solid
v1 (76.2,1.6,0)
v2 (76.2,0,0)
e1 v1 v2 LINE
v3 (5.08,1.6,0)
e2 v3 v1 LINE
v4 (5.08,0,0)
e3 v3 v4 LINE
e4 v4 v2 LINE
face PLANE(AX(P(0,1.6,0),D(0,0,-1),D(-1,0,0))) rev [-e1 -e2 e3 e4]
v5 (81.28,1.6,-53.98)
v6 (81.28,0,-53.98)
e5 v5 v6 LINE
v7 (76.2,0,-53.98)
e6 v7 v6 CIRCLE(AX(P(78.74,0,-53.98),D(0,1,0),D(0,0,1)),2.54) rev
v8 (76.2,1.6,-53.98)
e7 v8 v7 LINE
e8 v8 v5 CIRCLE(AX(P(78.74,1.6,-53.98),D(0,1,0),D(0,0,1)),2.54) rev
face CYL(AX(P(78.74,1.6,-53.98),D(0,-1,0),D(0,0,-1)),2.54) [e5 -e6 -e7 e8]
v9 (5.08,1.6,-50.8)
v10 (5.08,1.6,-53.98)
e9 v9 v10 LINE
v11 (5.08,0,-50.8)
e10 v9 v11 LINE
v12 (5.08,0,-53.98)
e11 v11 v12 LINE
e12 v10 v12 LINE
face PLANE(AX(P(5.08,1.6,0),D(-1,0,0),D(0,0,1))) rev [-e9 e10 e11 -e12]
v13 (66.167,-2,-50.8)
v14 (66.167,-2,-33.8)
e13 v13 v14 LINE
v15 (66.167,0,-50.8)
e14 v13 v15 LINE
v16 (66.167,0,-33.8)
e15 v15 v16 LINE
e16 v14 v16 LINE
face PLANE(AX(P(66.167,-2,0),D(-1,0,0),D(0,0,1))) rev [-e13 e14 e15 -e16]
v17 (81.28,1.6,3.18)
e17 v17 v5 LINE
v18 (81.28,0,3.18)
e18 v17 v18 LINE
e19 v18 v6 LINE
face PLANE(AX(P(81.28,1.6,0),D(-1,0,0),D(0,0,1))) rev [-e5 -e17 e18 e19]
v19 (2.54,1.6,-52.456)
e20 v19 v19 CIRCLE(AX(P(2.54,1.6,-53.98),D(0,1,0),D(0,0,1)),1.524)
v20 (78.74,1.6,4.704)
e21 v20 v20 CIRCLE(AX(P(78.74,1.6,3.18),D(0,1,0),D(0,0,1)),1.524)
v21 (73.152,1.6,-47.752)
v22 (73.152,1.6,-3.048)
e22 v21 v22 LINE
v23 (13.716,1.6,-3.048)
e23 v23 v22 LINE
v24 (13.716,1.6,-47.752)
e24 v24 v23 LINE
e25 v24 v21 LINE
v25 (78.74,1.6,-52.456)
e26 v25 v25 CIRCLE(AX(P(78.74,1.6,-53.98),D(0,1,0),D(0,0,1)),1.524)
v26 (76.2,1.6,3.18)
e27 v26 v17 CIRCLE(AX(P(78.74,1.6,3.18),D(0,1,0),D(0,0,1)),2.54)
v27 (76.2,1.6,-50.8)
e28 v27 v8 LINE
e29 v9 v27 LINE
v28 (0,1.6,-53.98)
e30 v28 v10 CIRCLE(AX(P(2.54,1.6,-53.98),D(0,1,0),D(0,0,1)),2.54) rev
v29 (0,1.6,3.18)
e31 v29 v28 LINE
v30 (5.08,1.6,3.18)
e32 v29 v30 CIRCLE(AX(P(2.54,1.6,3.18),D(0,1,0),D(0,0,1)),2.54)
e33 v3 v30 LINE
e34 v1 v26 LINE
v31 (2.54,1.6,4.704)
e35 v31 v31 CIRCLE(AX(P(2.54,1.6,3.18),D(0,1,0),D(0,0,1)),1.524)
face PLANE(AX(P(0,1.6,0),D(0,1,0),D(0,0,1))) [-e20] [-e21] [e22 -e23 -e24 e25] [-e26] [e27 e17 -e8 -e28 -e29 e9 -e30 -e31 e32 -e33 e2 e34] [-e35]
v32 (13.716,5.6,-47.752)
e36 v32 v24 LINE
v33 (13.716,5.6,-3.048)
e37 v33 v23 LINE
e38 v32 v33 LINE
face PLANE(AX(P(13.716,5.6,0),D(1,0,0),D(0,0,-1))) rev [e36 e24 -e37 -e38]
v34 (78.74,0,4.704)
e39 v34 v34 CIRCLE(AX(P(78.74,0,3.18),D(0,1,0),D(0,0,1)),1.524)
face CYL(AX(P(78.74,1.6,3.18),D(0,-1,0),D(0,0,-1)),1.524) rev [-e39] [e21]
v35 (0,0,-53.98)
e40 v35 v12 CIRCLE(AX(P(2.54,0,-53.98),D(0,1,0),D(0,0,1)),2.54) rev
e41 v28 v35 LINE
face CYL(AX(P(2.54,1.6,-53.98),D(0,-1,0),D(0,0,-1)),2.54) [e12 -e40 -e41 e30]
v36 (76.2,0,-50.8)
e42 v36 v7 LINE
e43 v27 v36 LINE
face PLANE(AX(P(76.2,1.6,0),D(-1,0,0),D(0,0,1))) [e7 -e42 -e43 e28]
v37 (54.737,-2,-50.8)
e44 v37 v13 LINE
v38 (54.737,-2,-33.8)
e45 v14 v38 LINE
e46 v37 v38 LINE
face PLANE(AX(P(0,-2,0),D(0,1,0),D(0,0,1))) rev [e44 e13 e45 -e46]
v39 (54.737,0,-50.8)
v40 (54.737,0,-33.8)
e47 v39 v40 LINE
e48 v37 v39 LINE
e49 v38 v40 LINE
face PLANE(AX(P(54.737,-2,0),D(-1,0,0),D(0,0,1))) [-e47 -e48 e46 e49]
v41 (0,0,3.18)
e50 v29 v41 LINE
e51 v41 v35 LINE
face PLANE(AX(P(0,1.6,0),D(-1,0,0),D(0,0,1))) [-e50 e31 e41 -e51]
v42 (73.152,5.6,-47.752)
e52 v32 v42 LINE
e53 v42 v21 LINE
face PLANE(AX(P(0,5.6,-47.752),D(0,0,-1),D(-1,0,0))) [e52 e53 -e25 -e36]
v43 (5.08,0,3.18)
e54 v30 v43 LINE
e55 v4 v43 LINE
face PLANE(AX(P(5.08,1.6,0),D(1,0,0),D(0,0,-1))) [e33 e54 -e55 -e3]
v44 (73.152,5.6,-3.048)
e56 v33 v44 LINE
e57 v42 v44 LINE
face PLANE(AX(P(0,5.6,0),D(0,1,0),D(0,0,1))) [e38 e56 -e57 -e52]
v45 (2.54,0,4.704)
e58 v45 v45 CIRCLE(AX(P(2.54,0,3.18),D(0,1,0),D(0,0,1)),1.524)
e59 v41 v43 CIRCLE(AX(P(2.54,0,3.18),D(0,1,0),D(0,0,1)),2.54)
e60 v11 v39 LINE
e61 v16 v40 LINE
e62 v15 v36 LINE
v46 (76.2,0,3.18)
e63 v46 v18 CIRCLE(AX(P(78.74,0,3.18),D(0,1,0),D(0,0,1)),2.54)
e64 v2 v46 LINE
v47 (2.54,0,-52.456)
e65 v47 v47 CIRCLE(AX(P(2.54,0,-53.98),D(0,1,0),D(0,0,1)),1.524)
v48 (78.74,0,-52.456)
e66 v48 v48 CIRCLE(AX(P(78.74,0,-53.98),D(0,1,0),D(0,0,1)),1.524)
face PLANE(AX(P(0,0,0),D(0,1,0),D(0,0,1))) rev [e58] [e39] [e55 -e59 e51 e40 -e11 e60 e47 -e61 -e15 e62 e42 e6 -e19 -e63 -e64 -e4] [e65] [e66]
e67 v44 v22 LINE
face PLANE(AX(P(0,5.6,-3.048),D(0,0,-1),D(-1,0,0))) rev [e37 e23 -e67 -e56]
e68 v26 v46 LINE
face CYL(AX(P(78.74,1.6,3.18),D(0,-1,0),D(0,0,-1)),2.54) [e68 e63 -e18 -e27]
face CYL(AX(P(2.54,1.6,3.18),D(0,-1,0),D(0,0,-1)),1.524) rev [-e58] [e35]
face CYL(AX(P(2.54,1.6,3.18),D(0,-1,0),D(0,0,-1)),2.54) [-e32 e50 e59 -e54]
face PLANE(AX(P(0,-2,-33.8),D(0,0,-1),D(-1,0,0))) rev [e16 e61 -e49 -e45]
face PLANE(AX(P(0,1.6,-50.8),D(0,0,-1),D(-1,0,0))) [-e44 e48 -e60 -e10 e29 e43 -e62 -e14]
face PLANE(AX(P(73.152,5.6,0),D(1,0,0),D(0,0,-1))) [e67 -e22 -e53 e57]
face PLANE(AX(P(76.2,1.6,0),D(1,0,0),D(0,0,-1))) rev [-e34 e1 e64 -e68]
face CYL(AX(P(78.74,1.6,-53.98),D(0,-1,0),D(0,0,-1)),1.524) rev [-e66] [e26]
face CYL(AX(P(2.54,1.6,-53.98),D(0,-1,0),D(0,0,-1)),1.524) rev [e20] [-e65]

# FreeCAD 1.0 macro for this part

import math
import FreeCAD as App
import Part
import Sketcher
Q = App.Units.Quantity


def add_polygon(sketch, points):
    """Adds a closed chain of lines whose ends are joined by coincident constraints."""
    first, n = sketch.GeometryCount, len(points)
    for a, b in zip(points, points[1:] + points[:1]):
        sketch.addGeometry(Part.LineSegment(App.Vector(*a, 0), App.Vector(*b, 0)), False)
    for i in range(n):
        sketch.addConstraint(Sketcher.Constraint("Coincident", first + i, 2, first + (i + 1) % n, 1))

doc = App.newDocument("Part")
body = doc.addObject("PartDesign::Body", "Body")

sketch1 = body.newObject("Sketcher::SketchObject", "Sketch")
sketch1.AttachmentSupport = (doc.getObject("XZ_Plane"), [""])
sketch1.MapMode = "FlatFace"
add_polygon(sketch1, [(81.28, -50.8), (66.167, -50.8), (66.167, -47.752), (73.152, -47.752), (73.152, -3.048), (13.716, -3.048), (13.716, -47.752), (54.737, -47.752), (54.737, -50.8), (0, -50.8), (0, 0), (81.28, 0)])
sketch1.addConstraint(Sketcher.Constraint("Horizontal", 0))
sketch1.addConstraint(Sketcher.Constraint("Vertical", 1))
sketch1.addConstraint(Sketcher.Constraint("Horizontal", 2))
sketch1.addConstraint(Sketcher.Constraint("Vertical", 3))
sketch1.addConstraint(Sketcher.Constraint("Horizontal", 4))
sketch1.addConstraint(Sketcher.Constraint("Vertical", 5))
sketch1.addConstraint(Sketcher.Constraint("Horizontal", 6))
sketch1.addConstraint(Sketcher.Constraint("Vertical", 7))
sketch1.addConstraint(Sketcher.Constraint("Horizontal", 8))
sketch1.addConstraint(Sketcher.Constraint("Vertical", 9))
sketch1.addConstraint(Sketcher.Constraint("Horizontal", 10))
sketch1.addConstraint(Sketcher.Constraint("Vertical", 11))
sketch1.addConstraint(Sketcher.Constraint("Coincident", 9, 2, -1, 1))
sketch1.addConstraint(Sketcher.Constraint("Horizontal", 2, 2, 5, 2))
sketch1.addConstraint(Sketcher.Constraint("Horizontal", 0, 2, 7, 2))
sketch1.addConstraint(Sketcher.Constraint("DistanceY", 9, 1, 9, 2, Q("2 in")))
sketch1.addConstraint(Sketcher.Constraint("DistanceX", 10, 1, 10, 2, Q("3.2 in")))
sketch1.addConstraint(Sketcher.Constraint("DistanceX", 4, 2, 4, 1, Q("2.34 in")))
sketch1.addConstraint(Sketcher.Constraint("DistanceY", 1, 1, 1, 2, Q("0.12 in")))
sketch1.addConstraint(Sketcher.Constraint("DistanceY", 3, 1, 3, 2, Q("1.76 in")))
sketch1.addConstraint(Sketcher.Constraint("DistanceX", 0, 2, 0, 1, Q("0.595 in")))
sketch1.addConstraint(Sketcher.Constraint("DistanceX", 2, 1, 2, 2, Q("0.275 in")))
sketch1.addConstraint(Sketcher.Constraint("DistanceX", 6, 1, 6, 2, Q("1.615 in")))
pad1 = body.newObject("PartDesign::Pad", "Pad")
pad1.Profile = sketch1
pad1.Length = 1.6
pad1.Reversed = True

sketch2 = body.newObject("Sketcher::SketchObject", "Sketch001")
sketch2.AttachmentSupport = (doc.getObject("XZ_Plane"), [""])
sketch2.MapMode = "FlatFace"
sketch2.addGeometry(Part.LineSegment(App.Vector(0, -50.8, 0), App.Vector(5.08, -50.8, 0)), False)
sketch2.addGeometry(Part.LineSegment(App.Vector(5.08, -50.8, 0), App.Vector(5.08, -53.98, 0)), False)
sketch2.addGeometry(Part.ArcOfCircle(Part.Circle(App.Vector(2.54, -53.98, 0), App.Vector(0, 0, 1), 2.54), math.radians(180), math.radians(360)), False)
sketch2.addGeometry(Part.LineSegment(App.Vector(0, -53.98, 0), App.Vector(0, -50.8, 0)), False)
sketch2.addGeometry(Part.Circle(App.Vector(2.54, -53.98, 0), App.Vector(0, 0, 1), 1.524), False)
sketch2.addConstraint(Sketcher.Constraint("Coincident", 0, 2, 1, 1))
sketch2.addConstraint(Sketcher.Constraint("Tangent", 1, 2, 2, 2))
sketch2.addConstraint(Sketcher.Constraint("Tangent", 2, 1, 3, 1))
sketch2.addConstraint(Sketcher.Constraint("Coincident", 3, 2, 0, 1))
sketch2.addConstraint(Sketcher.Constraint("Horizontal", 0))
sketch2.addConstraint(Sketcher.Constraint("Vertical", 1))
sketch2.addConstraint(Sketcher.Constraint("Vertical", 3))
sketch2.addConstraint(Sketcher.Constraint("Coincident", 4, 3, 2, 3))
sketch2.addConstraint(Sketcher.Constraint("PointOnObject", 2, 1, -2))
sketch2.addConstraint(Sketcher.Constraint("Radius", 2, Q("0.1 in")))
sketch2.addConstraint(Sketcher.Constraint("Diameter", 4, Q("0.12 in")))
sketch2.addConstraint(Sketcher.Constraint("DistanceY", 0, 2, -1, 1, Q("2 in")))
sketch2.addConstraint(Sketcher.Constraint("DistanceY", 1, 2, 1, 1, Q("3.18 mm")))
pad2 = body.newObject("PartDesign::Pad", "Pad001")
pad2.Profile = sketch2
pad2.Length = 1.6
pad2.Reversed = True

sketch3 = body.newObject("Sketcher::SketchObject", "Sketch002")
sketch3.AttachmentSupport = (doc.getObject("XZ_Plane"), [""])
sketch3.MapMode = "FlatFace"
sketch3.addGeometry(Part.LineSegment(App.Vector(76.2, -53.98, 0), App.Vector(76.2, -50.8, 0)), False)
sketch3.addGeometry(Part.LineSegment(App.Vector(76.2, -50.8, 0), App.Vector(81.28, -50.8, 0)), False)
sketch3.addGeometry(Part.LineSegment(App.Vector(81.28, -50.8, 0), App.Vector(81.28, -53.98, 0)), False)
sketch3.addGeometry(Part.ArcOfCircle(Part.Circle(App.Vector(78.74, -53.98, 0), App.Vector(0, 0, 1), 2.54), math.radians(180), math.radians(360)), False)
sketch3.addGeometry(Part.Circle(App.Vector(78.74, -53.98, 0), App.Vector(0, 0, 1), 1.524), False)
sketch3.addConstraint(Sketcher.Constraint("Coincident", 0, 2, 1, 1))
sketch3.addConstraint(Sketcher.Constraint("Coincident", 1, 2, 2, 1))
sketch3.addConstraint(Sketcher.Constraint("Tangent", 2, 2, 3, 2))
sketch3.addConstraint(Sketcher.Constraint("Tangent", 3, 1, 0, 1))
sketch3.addConstraint(Sketcher.Constraint("Vertical", 0))
sketch3.addConstraint(Sketcher.Constraint("Horizontal", 1))
sketch3.addConstraint(Sketcher.Constraint("Vertical", 2))
sketch3.addConstraint(Sketcher.Constraint("Coincident", 4, 3, 3, 3))
sketch3.addConstraint(Sketcher.Constraint("Radius", 3, Q("0.1 in")))
sketch3.addConstraint(Sketcher.Constraint("Diameter", 4, Q("0.12 in")))
sketch3.addConstraint(Sketcher.Constraint("DistanceX", -1, 1, 0, 2, Q("3 in")))
sketch3.addConstraint(Sketcher.Constraint("DistanceY", 0, 2, -1, 1, Q("2 in")))
sketch3.addConstraint(Sketcher.Constraint("DistanceY", 0, 1, 0, 2, Q("3.18 mm")))
pad3 = body.newObject("PartDesign::Pad", "Pad002")
pad3.Profile = sketch3
pad3.Length = 1.6
pad3.Reversed = True

sketch4 = body.newObject("Sketcher::SketchObject", "Sketch003")
sketch4.AttachmentSupport = (doc.getObject("XZ_Plane"), [""])
sketch4.MapMode = "FlatFace"
sketch4.addGeometry(Part.LineSegment(App.Vector(5.08, 3.18, 0), App.Vector(5.08, 0, 0)), False)
sketch4.addGeometry(Part.LineSegment(App.Vector(5.08, 0, 0), App.Vector(0, 0, 0)), False)
sketch4.addGeometry(Part.LineSegment(App.Vector(0, 0, 0), App.Vector(0, 3.18, 0)), False)
sketch4.addGeometry(Part.ArcOfCircle(Part.Circle(App.Vector(2.54, 3.18, 0), App.Vector(0, 0, 1), 2.54), math.radians(0), math.radians(180)), False)
sketch4.addGeometry(Part.Circle(App.Vector(2.54, 3.18, 0), App.Vector(0, 0, 1), 1.524), False)
sketch4.addConstraint(Sketcher.Constraint("Coincident", 0, 2, 1, 1))
sketch4.addConstraint(Sketcher.Constraint("Coincident", 1, 2, 2, 1))
sketch4.addConstraint(Sketcher.Constraint("Tangent", 2, 2, 3, 2))
sketch4.addConstraint(Sketcher.Constraint("Tangent", 3, 1, 0, 1))
sketch4.addConstraint(Sketcher.Constraint("Vertical", 0))
sketch4.addConstraint(Sketcher.Constraint("Horizontal", 1))
sketch4.addConstraint(Sketcher.Constraint("Vertical", 2))
sketch4.addConstraint(Sketcher.Constraint("Coincident", 1, 2, -1, 1))
sketch4.addConstraint(Sketcher.Constraint("Coincident", 4, 3, 3, 3))
sketch4.addConstraint(Sketcher.Constraint("Radius", 3, Q("0.1 in")))
sketch4.addConstraint(Sketcher.Constraint("Diameter", 4, Q("0.12 in")))
sketch4.addConstraint(Sketcher.Constraint("DistanceY", 0, 2, 0, 1, Q("3.18 mm")))
pad4 = body.newObject("PartDesign::Pad", "Pad003")
pad4.Profile = sketch4
pad4.Length = 1.6
pad4.Reversed = True

sketch5 = body.newObject("Sketcher::SketchObject", "Sketch004")
sketch5.AttachmentSupport = (doc.getObject("XZ_Plane"), [""])
sketch5.MapMode = "FlatFace"
sketch5.addGeometry(Part.LineSegment(App.Vector(81.28, 3.18, 0), App.Vector(81.28, 0, 0)), False)
sketch5.addGeometry(Part.LineSegment(App.Vector(81.28, 0, 0), App.Vector(76.2, 0, 0)), False)
sketch5.addGeometry(Part.LineSegment(App.Vector(76.2, 0, 0), App.Vector(76.2, 3.18, 0)), False)
sketch5.addGeometry(Part.ArcOfCircle(Part.Circle(App.Vector(78.74, 3.18, 0), App.Vector(0, 0, 1), 2.54), math.radians(0), math.radians(180)), False)
sketch5.addGeometry(Part.Circle(App.Vector(78.74, 3.18, 0), App.Vector(0, 0, 1), 1.524), False)
sketch5.addConstraint(Sketcher.Constraint("Coincident", 0, 2, 1, 1))
sketch5.addConstraint(Sketcher.Constraint("Coincident", 1, 2, 2, 1))
sketch5.addConstraint(Sketcher.Constraint("Tangent", 2, 2, 3, 2))
sketch5.addConstraint(Sketcher.Constraint("Tangent", 3, 1, 0, 1))
sketch5.addConstraint(Sketcher.Constraint("Vertical", 0))
sketch5.addConstraint(Sketcher.Constraint("Horizontal", 1))
sketch5.addConstraint(Sketcher.Constraint("Vertical", 2))
sketch5.addConstraint(Sketcher.Constraint("Coincident", 4, 3, 3, 3))
sketch5.addConstraint(Sketcher.Constraint("PointOnObject", 0, 2, -1))
sketch5.addConstraint(Sketcher.Constraint("Radius", 3, Q("0.1 in")))
sketch5.addConstraint(Sketcher.Constraint("Diameter", 4, Q("0.12 in")))
sketch5.addConstraint(Sketcher.Constraint("DistanceX", -1, 1, 1, 2, Q("3 in")))
sketch5.addConstraint(Sketcher.Constraint("DistanceY", 0, 2, 0, 1, Q("3.18 mm")))
pad5 = body.newObject("PartDesign::Pad", "Pad004")
pad5.Profile = sketch5
pad5.Length = 1.6
pad5.Reversed = True

sketch6 = body.newObject("Sketcher::SketchObject", "Sketch005")
sketch6.AttachmentSupport = (doc.getObject("XZ_Plane"), [""])
sketch6.MapMode = "FlatFace"
add_polygon(sketch6, [(73.152, -47.752), (66.167, -47.752), (66.167, -33.8), (54.737, -33.8), (54.737, -47.752), (13.716, -47.752), (13.716, -3.048), (73.152, -3.048)])
sketch6.addConstraint(Sketcher.Constraint("Horizontal", 0))
sketch6.addConstraint(Sketcher.Constraint("Vertical", 1))
sketch6.addConstraint(Sketcher.Constraint("Horizontal", 2))
sketch6.addConstraint(Sketcher.Constraint("Vertical", 3))
sketch6.addConstraint(Sketcher.Constraint("Horizontal", 4))
sketch6.addConstraint(Sketcher.Constraint("Vertical", 5))
sketch6.addConstraint(Sketcher.Constraint("Horizontal", 6))
sketch6.addConstraint(Sketcher.Constraint("Vertical", 7))
sketch6.addConstraint(Sketcher.Constraint("Horizontal", 0, 2, 3, 2))
sketch6.addConstraint(Sketcher.Constraint("DistanceX", 2, 2, 2, 1, Q("0.45 in")))
sketch6.addConstraint(Sketcher.Constraint("DistanceX", 6, 1, 6, 2, Q("2.34 in")))
sketch6.addConstraint(Sketcher.Constraint("DistanceY", 5, 1, 5, 2, Q("1.76 in")))
sketch6.addConstraint(Sketcher.Constraint("DistanceX", 0, 2, 0, 1, Q("0.275 in")))
sketch6.addConstraint(Sketcher.Constraint("DistanceY", 0, 2, -1, 1, Q("1.88 in")))
sketch6.addConstraint(Sketcher.Constraint("DistanceX", -1, 1, 4, 2, Q("0.54 in")))
sketch6.addConstraint(Sketcher.Constraint("DistanceY", 1, 1, 1, 2, Q("13.952 mm")))
pad6 = body.newObject("PartDesign::Pad", "Pad005")
pad6.Profile = sketch6
pad6.Length = 5.6
pad6.Reversed = True

sketch7 = body.newObject("Sketcher::SketchObject", "Sketch006")
sketch7.AttachmentSupport = (doc.getObject("XZ_Plane"), [""])
sketch7.MapMode = "FlatFace"
add_polygon(sketch7, [(54.737, -47.752), (54.737, -33.8), (66.167, -33.8), (66.167, -47.752)])
sketch7.addConstraint(Sketcher.Constraint("Vertical", 0))
sketch7.addConstraint(Sketcher.Constraint("Horizontal", 1))
sketch7.addConstraint(Sketcher.Constraint("Vertical", 2))
sketch7.addConstraint(Sketcher.Constraint("Horizontal", 3))
sketch7.addConstraint(Sketcher.Constraint("DistanceX", 1, 1, 1, 2, Q("0.45 in")))
sketch7.addConstraint(Sketcher.Constraint("DistanceY", 2, 2, -1, 1, Q("1.88 in")))
sketch7.addConstraint(Sketcher.Constraint("DistanceX", -1, 1, 0, 2, Q("2.155 in")))
sketch7.addConstraint(Sketcher.Constraint("DistanceY", 0, 1, 0, 2, Q("13.952 mm")))
pad7 = body.newObject("PartDesign::Pad", "Pad006")
pad7.Profile = sketch7
pad7.Length = 5.6
pad7.Reversed = True

sketch8 = body.newObject("Sketcher::SketchObject", "Sketch007")
sketch8.AttachmentSupport = (doc.getObject("XZ_Plane"), [""])
sketch8.MapMode = "FlatFace"
add_polygon(sketch8, [(54.737, -50.8), (54.737, -47.752), (66.167, -47.752), (66.167, -50.8)])
sketch8.addConstraint(Sketcher.Constraint("Vertical", 0))
sketch8.addConstraint(Sketcher.Constraint("Horizontal", 1))
sketch8.addConstraint(Sketcher.Constraint("Vertical", 2))
sketch8.addConstraint(Sketcher.Constraint("Horizontal", 3))
sketch8.addConstraint(Sketcher.Constraint("DistanceY", 2, 2, -1, 1, Q("2 in")))
sketch8.addConstraint(Sketcher.Constraint("DistanceX", 1, 1, 1, 2, Q("0.45 in")))
sketch8.addConstraint(Sketcher.Constraint("DistanceY", 0, 1, 0, 2, Q("0.12 in")))
sketch8.addConstraint(Sketcher.Constraint("DistanceX", -1, 1, 0, 2, Q("2.155 in")))
pad8 = body.newObject("PartDesign::Pad", "Pad007")
pad8.Profile = sketch8
pad8.Length = 1.6
pad8.Reversed = True

sketch9 = body.newObject("Sketcher::SketchObject", "Sketch008")
sketch9.AttachmentSupport = (doc.getObject("XZ_Plane"), [""])
sketch9.MapMode = "FlatFace"
add_polygon(sketch9, [(54.737, -47.752), (54.737, -33.8), (66.167, -33.8), (66.167, -47.752)])
sketch9.addConstraint(Sketcher.Constraint("Vertical", 0))
sketch9.addConstraint(Sketcher.Constraint("Horizontal", 1))
sketch9.addConstraint(Sketcher.Constraint("Vertical", 2))
sketch9.addConstraint(Sketcher.Constraint("Horizontal", 3))
sketch9.addConstraint(Sketcher.Constraint("DistanceX", 1, 1, 1, 2, Q("0.45 in")))
sketch9.addConstraint(Sketcher.Constraint("DistanceY", 2, 2, -1, 1, Q("1.88 in")))
sketch9.addConstraint(Sketcher.Constraint("DistanceX", -1, 1, 0, 2, Q("2.155 in")))
sketch9.addConstraint(Sketcher.Constraint("DistanceY", 0, 1, 0, 2, Q("13.952 mm")))
pad9 = body.newObject("PartDesign::Pad", "Pad008")
pad9.Profile = sketch9
pad9.Length = 2

sketch10 = body.newObject("Sketcher::SketchObject", "Sketch009")
sketch10.AttachmentSupport = (doc.getObject("XZ_Plane"), [""])
sketch10.MapMode = "FlatFace"
add_polygon(sketch10, [(54.737, -50.8), (54.737, -47.752), (66.167, -47.752), (66.167, -50.8)])
sketch10.addConstraint(Sketcher.Constraint("Vertical", 0))
sketch10.addConstraint(Sketcher.Constraint("Horizontal", 1))
sketch10.addConstraint(Sketcher.Constraint("Vertical", 2))
sketch10.addConstraint(Sketcher.Constraint("Horizontal", 3))
sketch10.addConstraint(Sketcher.Constraint("DistanceY", 2, 2, -1, 1, Q("2 in")))
sketch10.addConstraint(Sketcher.Constraint("DistanceX", 1, 1, 1, 2, Q("0.45 in")))
sketch10.addConstraint(Sketcher.Constraint("DistanceY", 0, 1, 0, 2, Q("0.12 in")))
sketch10.addConstraint(Sketcher.Constraint("DistanceX", -1, 1, 0, 2, Q("2.155 in")))
pad10 = body.newObject("PartDesign::Pad", "Pad009")
pad10.Profile = sketch10
pad10.Length = 2

doc.recompute()
